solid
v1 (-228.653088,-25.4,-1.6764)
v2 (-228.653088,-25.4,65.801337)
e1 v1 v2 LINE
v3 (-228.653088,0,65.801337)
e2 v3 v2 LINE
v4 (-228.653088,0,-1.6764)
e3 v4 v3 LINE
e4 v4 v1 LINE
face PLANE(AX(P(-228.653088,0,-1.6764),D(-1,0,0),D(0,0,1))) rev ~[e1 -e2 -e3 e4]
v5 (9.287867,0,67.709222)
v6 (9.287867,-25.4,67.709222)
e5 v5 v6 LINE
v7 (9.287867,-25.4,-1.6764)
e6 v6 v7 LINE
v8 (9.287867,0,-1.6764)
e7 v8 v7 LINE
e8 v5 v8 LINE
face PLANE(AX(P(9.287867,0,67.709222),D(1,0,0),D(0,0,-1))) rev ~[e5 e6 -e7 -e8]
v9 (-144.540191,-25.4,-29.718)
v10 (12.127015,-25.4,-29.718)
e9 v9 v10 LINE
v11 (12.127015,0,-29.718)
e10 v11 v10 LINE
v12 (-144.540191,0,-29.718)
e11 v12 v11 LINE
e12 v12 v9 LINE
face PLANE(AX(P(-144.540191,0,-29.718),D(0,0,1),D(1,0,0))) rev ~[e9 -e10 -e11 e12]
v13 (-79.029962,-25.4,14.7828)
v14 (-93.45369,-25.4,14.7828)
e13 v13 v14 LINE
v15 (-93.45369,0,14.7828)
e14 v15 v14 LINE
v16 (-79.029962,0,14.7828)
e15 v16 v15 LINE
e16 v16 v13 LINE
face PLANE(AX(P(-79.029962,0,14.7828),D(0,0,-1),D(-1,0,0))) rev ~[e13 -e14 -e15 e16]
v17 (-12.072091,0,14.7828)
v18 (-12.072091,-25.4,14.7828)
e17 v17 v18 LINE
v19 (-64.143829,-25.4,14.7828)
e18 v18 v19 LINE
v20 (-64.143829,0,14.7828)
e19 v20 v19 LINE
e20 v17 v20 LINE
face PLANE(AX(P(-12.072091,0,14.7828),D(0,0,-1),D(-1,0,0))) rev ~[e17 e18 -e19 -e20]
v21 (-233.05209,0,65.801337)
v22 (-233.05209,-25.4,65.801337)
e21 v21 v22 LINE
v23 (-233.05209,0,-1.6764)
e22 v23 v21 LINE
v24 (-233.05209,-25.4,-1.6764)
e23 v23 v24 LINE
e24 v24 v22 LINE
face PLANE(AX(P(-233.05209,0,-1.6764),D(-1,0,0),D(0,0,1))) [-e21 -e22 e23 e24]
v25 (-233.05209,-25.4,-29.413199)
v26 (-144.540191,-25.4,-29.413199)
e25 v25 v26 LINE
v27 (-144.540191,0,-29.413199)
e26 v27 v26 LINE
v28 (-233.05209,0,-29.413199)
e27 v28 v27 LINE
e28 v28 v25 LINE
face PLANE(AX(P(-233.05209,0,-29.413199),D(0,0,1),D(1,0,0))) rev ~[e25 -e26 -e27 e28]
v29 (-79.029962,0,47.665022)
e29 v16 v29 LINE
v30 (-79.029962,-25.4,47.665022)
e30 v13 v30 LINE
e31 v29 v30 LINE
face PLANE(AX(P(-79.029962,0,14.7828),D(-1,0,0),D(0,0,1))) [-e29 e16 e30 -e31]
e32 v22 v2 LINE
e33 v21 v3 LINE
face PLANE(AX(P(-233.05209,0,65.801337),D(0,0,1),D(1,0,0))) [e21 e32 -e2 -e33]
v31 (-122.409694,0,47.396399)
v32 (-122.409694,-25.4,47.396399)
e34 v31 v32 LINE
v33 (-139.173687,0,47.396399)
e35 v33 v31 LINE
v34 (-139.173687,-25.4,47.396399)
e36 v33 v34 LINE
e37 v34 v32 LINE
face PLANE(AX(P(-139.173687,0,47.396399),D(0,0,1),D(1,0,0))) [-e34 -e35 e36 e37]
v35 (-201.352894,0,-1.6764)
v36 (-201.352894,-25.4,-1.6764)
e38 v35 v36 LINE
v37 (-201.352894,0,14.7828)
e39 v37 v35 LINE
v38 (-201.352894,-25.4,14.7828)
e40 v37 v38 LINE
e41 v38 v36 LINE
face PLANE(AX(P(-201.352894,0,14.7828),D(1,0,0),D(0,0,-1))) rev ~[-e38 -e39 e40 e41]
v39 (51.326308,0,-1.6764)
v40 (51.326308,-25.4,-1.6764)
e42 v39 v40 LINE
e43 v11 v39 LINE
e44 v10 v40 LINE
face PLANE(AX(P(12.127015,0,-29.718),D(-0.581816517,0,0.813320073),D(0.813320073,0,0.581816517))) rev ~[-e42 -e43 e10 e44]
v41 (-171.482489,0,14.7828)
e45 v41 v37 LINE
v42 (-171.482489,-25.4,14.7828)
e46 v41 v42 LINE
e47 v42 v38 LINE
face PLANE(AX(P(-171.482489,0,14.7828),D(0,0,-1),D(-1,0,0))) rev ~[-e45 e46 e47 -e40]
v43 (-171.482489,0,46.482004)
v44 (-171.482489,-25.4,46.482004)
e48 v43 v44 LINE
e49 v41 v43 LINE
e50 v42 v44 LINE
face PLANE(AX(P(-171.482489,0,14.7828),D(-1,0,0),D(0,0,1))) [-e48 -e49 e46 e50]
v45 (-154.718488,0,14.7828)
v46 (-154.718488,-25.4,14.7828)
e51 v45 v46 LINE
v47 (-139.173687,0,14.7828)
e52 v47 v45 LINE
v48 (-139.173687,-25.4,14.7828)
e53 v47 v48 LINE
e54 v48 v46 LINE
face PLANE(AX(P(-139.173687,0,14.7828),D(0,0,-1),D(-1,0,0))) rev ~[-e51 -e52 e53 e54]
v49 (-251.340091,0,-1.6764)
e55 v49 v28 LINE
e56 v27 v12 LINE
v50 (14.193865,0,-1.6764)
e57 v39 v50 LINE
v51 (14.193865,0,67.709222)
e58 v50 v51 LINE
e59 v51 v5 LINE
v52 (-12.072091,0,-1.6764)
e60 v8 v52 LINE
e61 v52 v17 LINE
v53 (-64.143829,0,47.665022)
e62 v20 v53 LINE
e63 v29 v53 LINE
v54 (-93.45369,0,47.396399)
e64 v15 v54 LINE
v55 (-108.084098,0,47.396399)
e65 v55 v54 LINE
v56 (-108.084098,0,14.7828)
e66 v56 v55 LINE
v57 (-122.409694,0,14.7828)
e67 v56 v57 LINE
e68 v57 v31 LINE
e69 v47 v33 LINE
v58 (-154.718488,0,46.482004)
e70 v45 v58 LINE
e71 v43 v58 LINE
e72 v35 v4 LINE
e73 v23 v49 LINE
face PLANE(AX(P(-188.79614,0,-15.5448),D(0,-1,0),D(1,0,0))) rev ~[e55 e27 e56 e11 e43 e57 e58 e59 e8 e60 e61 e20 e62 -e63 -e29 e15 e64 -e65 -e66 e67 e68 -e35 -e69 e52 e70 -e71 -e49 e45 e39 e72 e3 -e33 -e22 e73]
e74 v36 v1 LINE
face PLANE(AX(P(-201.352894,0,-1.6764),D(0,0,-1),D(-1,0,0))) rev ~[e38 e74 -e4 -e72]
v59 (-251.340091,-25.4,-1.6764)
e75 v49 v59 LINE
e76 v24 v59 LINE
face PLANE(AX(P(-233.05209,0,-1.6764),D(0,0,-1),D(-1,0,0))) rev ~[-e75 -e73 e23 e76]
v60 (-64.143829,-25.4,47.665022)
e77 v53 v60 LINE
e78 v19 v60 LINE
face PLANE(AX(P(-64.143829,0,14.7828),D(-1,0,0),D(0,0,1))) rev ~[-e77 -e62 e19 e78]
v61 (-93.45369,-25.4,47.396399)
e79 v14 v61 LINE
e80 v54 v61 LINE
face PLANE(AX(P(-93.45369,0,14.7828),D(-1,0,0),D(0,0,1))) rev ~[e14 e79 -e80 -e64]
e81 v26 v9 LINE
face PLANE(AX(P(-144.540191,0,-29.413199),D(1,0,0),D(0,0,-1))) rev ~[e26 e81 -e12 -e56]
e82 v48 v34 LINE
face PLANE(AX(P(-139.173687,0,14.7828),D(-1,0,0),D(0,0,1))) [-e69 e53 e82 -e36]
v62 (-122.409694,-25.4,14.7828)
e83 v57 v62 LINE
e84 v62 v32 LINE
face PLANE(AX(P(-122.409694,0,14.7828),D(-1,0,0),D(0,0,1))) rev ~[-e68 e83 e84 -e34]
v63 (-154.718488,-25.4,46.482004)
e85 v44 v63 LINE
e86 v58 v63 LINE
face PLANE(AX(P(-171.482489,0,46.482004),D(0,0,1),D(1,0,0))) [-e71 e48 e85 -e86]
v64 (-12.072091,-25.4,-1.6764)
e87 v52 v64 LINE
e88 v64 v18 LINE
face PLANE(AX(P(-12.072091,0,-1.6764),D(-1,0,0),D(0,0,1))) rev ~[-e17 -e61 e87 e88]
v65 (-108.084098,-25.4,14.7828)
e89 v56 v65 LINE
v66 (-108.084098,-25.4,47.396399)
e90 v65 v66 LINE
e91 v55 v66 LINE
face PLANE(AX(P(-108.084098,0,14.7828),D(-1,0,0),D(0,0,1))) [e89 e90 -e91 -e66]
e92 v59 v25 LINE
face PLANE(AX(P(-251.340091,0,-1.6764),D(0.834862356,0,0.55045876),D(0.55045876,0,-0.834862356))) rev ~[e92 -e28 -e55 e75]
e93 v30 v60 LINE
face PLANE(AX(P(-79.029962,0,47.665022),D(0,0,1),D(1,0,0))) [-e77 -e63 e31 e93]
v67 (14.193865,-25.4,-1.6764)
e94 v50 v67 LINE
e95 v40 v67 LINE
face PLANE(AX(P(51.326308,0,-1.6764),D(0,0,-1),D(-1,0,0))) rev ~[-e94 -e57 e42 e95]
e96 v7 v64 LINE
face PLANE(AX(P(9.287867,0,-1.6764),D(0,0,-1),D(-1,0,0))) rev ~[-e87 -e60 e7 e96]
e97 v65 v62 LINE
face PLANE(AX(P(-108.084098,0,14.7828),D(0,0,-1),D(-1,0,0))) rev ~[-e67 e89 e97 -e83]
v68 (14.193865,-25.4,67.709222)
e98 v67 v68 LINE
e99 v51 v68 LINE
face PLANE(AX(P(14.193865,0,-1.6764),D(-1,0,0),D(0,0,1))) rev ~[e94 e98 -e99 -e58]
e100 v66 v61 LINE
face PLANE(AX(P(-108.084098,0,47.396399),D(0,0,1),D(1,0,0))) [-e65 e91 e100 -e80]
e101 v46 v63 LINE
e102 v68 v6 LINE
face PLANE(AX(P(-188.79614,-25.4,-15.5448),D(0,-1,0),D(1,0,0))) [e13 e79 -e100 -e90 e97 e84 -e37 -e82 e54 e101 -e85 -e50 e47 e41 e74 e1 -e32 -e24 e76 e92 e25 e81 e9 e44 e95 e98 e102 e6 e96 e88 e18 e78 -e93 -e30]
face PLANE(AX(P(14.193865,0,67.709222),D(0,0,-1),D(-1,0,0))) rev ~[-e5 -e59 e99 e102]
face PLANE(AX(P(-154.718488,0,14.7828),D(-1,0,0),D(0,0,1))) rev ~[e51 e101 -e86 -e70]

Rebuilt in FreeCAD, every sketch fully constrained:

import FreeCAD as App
import Part
import Sketcher

V = App.Vector
Q = App.Units.Quantity

doc = App.newDocument("Part")
body = doc.addObject("PartDesign::Body", "Body")

# Sketch on XZ plane
sketch1 = body.newObject("Sketcher::SketchObject", "Sketch")
sketch1.AttachmentSupport = (doc.getObject("XZ_Plane"), [""])
sketch1.MapMode = "FlatFace"
sketch1.addGeometry(Part.LineSegment(V(-12.07, -1.68, 0), V(-12.07, 14.78, 0)), False)
sketch1.addGeometry(Part.LineSegment(V(-12.07, 14.78, 0), V(-64.14, 14.78, 0)), False)
sketch1.addGeometry(Part.LineSegment(V(-64.14, 14.78, 0), V(-64.14, 47.67, 0)), False)
sketch1.addGeometry(Part.LineSegment(V(-64.14, 47.67, 0), V(-79.03, 47.67, 0)), False)
sketch1.addGeometry(Part.LineSegment(V(-79.03, 47.67, 0), V(-79.03, 14.78, 0)), False)
sketch1.addGeometry(Part.LineSegment(V(-79.03, 14.78, 0), V(-93.45, 14.78, 0)), False)
sketch1.addGeometry(Part.LineSegment(V(-93.45, 14.78, 0), V(-93.45, 47.4, 0)), False)
sketch1.addGeometry(Part.LineSegment(V(-93.45, 47.4, 0), V(-108.08, 47.4, 0)), False)
sketch1.addGeometry(Part.LineSegment(V(-108.08, 47.4, 0), V(-108.08, 14.78, 0)), False)
sketch1.addGeometry(Part.LineSegment(V(-108.08, 14.78, 0), V(-122.41, 14.78, 0)), False)
sketch1.addGeometry(Part.LineSegment(V(-122.41, 14.78, 0), V(-122.41, 47.4, 0)), False)
sketch1.addGeometry(Part.LineSegment(V(-122.41, 47.4, 0), V(-139.17, 47.4, 0)), False)
sketch1.addGeometry(Part.LineSegment(V(-139.17, 47.4, 0), V(-139.17, 14.78, 0)), False)
sketch1.addGeometry(Part.LineSegment(V(-139.17, 14.78, 0), V(-154.72, 14.78, 0)), False)
sketch1.addGeometry(Part.LineSegment(V(-154.72, 14.78, 0), V(-154.72, 46.48, 0)), False)
sketch1.addGeometry(Part.LineSegment(V(-154.72, 46.48, 0), V(-171.48, 46.48, 0)), False)
sketch1.addGeometry(Part.LineSegment(V(-171.48, 46.48, 0), V(-171.48, 14.78, 0)), False)
sketch1.addGeometry(Part.LineSegment(V(-171.48, 14.78, 0), V(-201.35, 14.78, 0)), False)
sketch1.addGeometry(Part.LineSegment(V(-201.35, 14.78, 0), V(-201.35, -1.68, 0)), False)
sketch1.addGeometry(Part.LineSegment(V(-201.35, -1.68, 0), V(-228.65, -1.68, 0)), False)
sketch1.addGeometry(Part.LineSegment(V(-228.65, -1.68, 0), V(-228.65, 65.8, 0)), False)
sketch1.addGeometry(Part.LineSegment(V(-228.65, 65.8, 0), V(-233.05, 65.8, 0)), False)
sketch1.addGeometry(Part.LineSegment(V(-233.05, 65.8, 0), V(-233.05, -1.68, 0)), False)
sketch1.addGeometry(Part.LineSegment(V(-233.05, -1.68, 0), V(-251.34, -1.68, 0)), False)
sketch1.addGeometry(Part.LineSegment(V(-251.34, -1.68, 0), V(-233.05, -29.41, 0)), False)
sketch1.addGeometry(Part.LineSegment(V(-233.05, -29.41, 0), V(-144.54, -29.41, 0)), False)
sketch1.addGeometry(Part.LineSegment(V(-144.54, -29.41, 0), V(-144.54, -29.72, 0)), False)
sketch1.addGeometry(Part.LineSegment(V(-144.54, -29.72, 0), V(12.13, -29.72, 0)), False)
sketch1.addGeometry(Part.LineSegment(V(12.13, -29.72, 0), V(51.33, -1.68, 0)), False)
sketch1.addGeometry(Part.LineSegment(V(51.33, -1.68, 0), V(14.19, -1.68, 0)), False)
sketch1.addGeometry(Part.LineSegment(V(14.19, -1.68, 0), V(14.19, 67.71, 0)), False)
sketch1.addGeometry(Part.LineSegment(V(14.19, 67.71, 0), V(9.29, 67.71, 0)), False)
sketch1.addGeometry(Part.LineSegment(V(9.29, 67.71, 0), V(9.29, -1.68, 0)), False)
sketch1.addGeometry(Part.LineSegment(V(9.29, -1.68, 0), V(-12.07, -1.68, 0)), False)
sketch1.addConstraint(Sketcher.Constraint("Coincident", 0, 2, 1, 1))
sketch1.addConstraint(Sketcher.Constraint("Coincident", 1, 2, 2, 1))
sketch1.addConstraint(Sketcher.Constraint("Coincident", 2, 2, 3, 1))
sketch1.addConstraint(Sketcher.Constraint("Coincident", 3, 2, 4, 1))
sketch1.addConstraint(Sketcher.Constraint("Coincident", 4, 2, 5, 1))
sketch1.addConstraint(Sketcher.Constraint("Coincident", 5, 2, 6, 1))
sketch1.addConstraint(Sketcher.Constraint("Coincident", 6, 2, 7, 1))
sketch1.addConstraint(Sketcher.Constraint("Coincident", 7, 2, 8, 1))
sketch1.addConstraint(Sketcher.Constraint("Coincident", 8, 2, 9, 1))
sketch1.addConstraint(Sketcher.Constraint("Coincident", 9, 2, 10, 1))
sketch1.addConstraint(Sketcher.Constraint("Coincident", 10, 2, 11, 1))
sketch1.addConstraint(Sketcher.Constraint("Coincident", 11, 2, 12, 1))
sketch1.addConstraint(Sketcher.Constraint("Coincident", 12, 2, 13, 1))
sketch1.addConstraint(Sketcher.Constraint("Coincident", 13, 2, 14, 1))
sketch1.addConstraint(Sketcher.Constraint("Coincident", 14, 2, 15, 1))
sketch1.addConstraint(Sketcher.Constraint("Coincident", 15, 2, 16, 1))
sketch1.addConstraint(Sketcher.Constraint("Coincident", 16, 2, 17, 1))
sketch1.addConstraint(Sketcher.Constraint("Coincident", 17, 2, 18, 1))
sketch1.addConstraint(Sketcher.Constraint("Coincident", 18, 2, 19, 1))
sketch1.addConstraint(Sketcher.Constraint("Coincident", 19, 2, 20, 1))
sketch1.addConstraint(Sketcher.Constraint("Coincident", 20, 2, 21, 1))
sketch1.addConstraint(Sketcher.Constraint("Coincident", 21, 2, 22, 1))
sketch1.addConstraint(Sketcher.Constraint("Coincident", 22, 2, 23, 1))
sketch1.addConstraint(Sketcher.Constraint("Coincident", 23, 2, 24, 1))
sketch1.addConstraint(Sketcher.Constraint("Coincident", 24, 2, 25, 1))
sketch1.addConstraint(Sketcher.Constraint("Coincident", 25, 2, 26, 1))
sketch1.addConstraint(Sketcher.Constraint("Coincident", 26, 2, 27, 1))
sketch1.addConstraint(Sketcher.Constraint("Coincident", 27, 2, 28, 1))
sketch1.addConstraint(Sketcher.Constraint("Coincident", 28, 2, 29, 1))
sketch1.addConstraint(Sketcher.Constraint("Coincident", 29, 2, 30, 1))
sketch1.addConstraint(Sketcher.Constraint("Coincident", 30, 2, 31, 1))
sketch1.addConstraint(Sketcher.Constraint("Coincident", 31, 2, 32, 1))
sketch1.addConstraint(Sketcher.Constraint("Coincident", 32, 2, 33, 1))
sketch1.addConstraint(Sketcher.Constraint("Coincident", 33, 2, 0, 1))
sketch1.addConstraint(Sketcher.Constraint("Vertical", 0))
sketch1.addConstraint(Sketcher.Constraint("Horizontal", 1))
sketch1.addConstraint(Sketcher.Constraint("Vertical", 2))
sketch1.addConstraint(Sketcher.Constraint("Horizontal", 3))
sketch1.addConstraint(Sketcher.Constraint("Vertical", 4))
sketch1.addConstraint(Sketcher.Constraint("Horizontal", 5))
sketch1.addConstraint(Sketcher.Constraint("Vertical", 6))
sketch1.addConstraint(Sketcher.Constraint("Horizontal", 7))
sketch1.addConstraint(Sketcher.Constraint("Vertical", 8))
sketch1.addConstraint(Sketcher.Constraint("Horizontal", 9))
sketch1.addConstraint(Sketcher.Constraint("Vertical", 10))
sketch1.addConstraint(Sketcher.Constraint("Horizontal", 11))
sketch1.addConstraint(Sketcher.Constraint("Vertical", 12))
sketch1.addConstraint(Sketcher.Constraint("Horizontal", 13))
sketch1.addConstraint(Sketcher.Constraint("Vertical", 14))
sketch1.addConstraint(Sketcher.Constraint("Horizontal", 15))
sketch1.addConstraint(Sketcher.Constraint("Vertical", 16))
sketch1.addConstraint(Sketcher.Constraint("Horizontal", 17))
sketch1.addConstraint(Sketcher.Constraint("Vertical", 18))
sketch1.addConstraint(Sketcher.Constraint("Horizontal", 19))
sketch1.addConstraint(Sketcher.Constraint("Vertical", 20))
sketch1.addConstraint(Sketcher.Constraint("Horizontal", 21))
sketch1.addConstraint(Sketcher.Constraint("Vertical", 22))
sketch1.addConstraint(Sketcher.Constraint("Horizontal", 23))
sketch1.addConstraint(Sketcher.Constraint("Horizontal", 25))
sketch1.addConstraint(Sketcher.Constraint("Vertical", 26))
sketch1.addConstraint(Sketcher.Constraint("Horizontal", 27))
sketch1.addConstraint(Sketcher.Constraint("Horizontal", 29))
sketch1.addConstraint(Sketcher.Constraint("Vertical", 30))
sketch1.addConstraint(Sketcher.Constraint("Horizontal", 31))
sketch1.addConstraint(Sketcher.Constraint("Vertical", 32))
sketch1.addConstraint(Sketcher.Constraint("Horizontal", 33))
sketch1.addConstraint(Sketcher.Constraint("Horizontal", 1, 2, 4, 2))
sketch1.addConstraint(Sketcher.Constraint("Horizontal", 5, 2, 8, 2))
sketch1.addConstraint(Sketcher.Constraint("Horizontal", 7, 2, 10, 2))
sketch1.addConstraint(Sketcher.Constraint("Horizontal", 9, 2, 12, 2))
sketch1.addConstraint(Sketcher.Constraint("Horizontal", 13, 2, 16, 2))
sketch1.addConstraint(Sketcher.Constraint("Horizontal", 19, 2, 22, 2))
sketch1.addConstraint(Sketcher.Constraint("Horizontal", 23, 2, 28, 2))
sketch1.addConstraint(Sketcher.Constraint("Horizontal", 29, 2, 32, 2))
sketch1.addConstraint(Sketcher.Constraint("Vertical", 22, 2, 24, 2))
sketch1.addConstraint(Sketcher.Constraint("DistanceX", 15, 2, 15, 1, Q("0.66 in")))
sketch1.addConstraint(Sketcher.Constraint("DistanceX", 23, 2, 23, 1, Q("0.7200001 in")))
sketch1.addConstraint(Sketcher.Constraint("DistanceX", 11, 2, 6, 2, Q("1.7999998 in")))
sketch1.addConstraint(Sketcher.Constraint("DistanceX", 9, 2, 9, 1, Q("0.5639999 in")))
sketch1.addConstraint(Sketcher.Constraint("DistanceX", 13, 2, 13, 1, Q("0.6120001 in")))
sketch1.addConstraint(Sketcher.Constraint("DistanceY", 0, 1, 0, 2, Q("0.648 in")))
sketch1.addConstraint(Sketcher.Constraint("DistanceY", 6, 1, 6, 2, Q("1.284 in")))
sketch1.addConstraint(Sketcher.Constraint("DistanceY", 14, 1, 14, 2, Q("1.2480002 in")))
sketch1.addConstraint(Sketcher.Constraint("DistanceY", 26, 2, 26, 1, Q("0.0120001 in")))
sketch1.addConstraint(Sketcher.Constraint("DistanceY", -1, 1, 14, 2, Q("1.8300002 in")))
sketch1.addConstraint(Sketcher.Constraint("DistanceY", 26, 2, -1, 1, Q("1.17 in")))
sketch1.addConstraint(Sketcher.Constraint("DistanceX", 9, 2, 5, 2, Q("1.1400001 in")))
sketch1.addConstraint(Sketcher.Constraint("DistanceX", 5, 2, 0, 2, Q("3.204 in")))
sketch1.addConstraint(Sketcher.Constraint("DistanceX", 21, 2, 17, 2, Q("1.2479998 in")))
sketch1.addConstraint(Sketcher.Constraint("DistanceX", 21, 2, 15, 2, Q("2.4240001 in")))
sketch1.addConstraint(Sketcher.Constraint("DistanceX", 0, 2, 28, 2, Q("2.496 in")))
sketch1.addConstraint(Sketcher.Constraint("DistanceX", 21, 2, 21, 1, Q("4.399002 mm")))
sketch1.addConstraint(Sketcher.Constraint("DistanceX", 25, 1, 25, 2, Q("88.511899 mm")))
sketch1.addConstraint(Sketcher.Constraint("DistanceX", 31, 2, 31, 1, Q("4.905999 mm")))
sketch1.addConstraint(Sketcher.Constraint("DistanceX", 1, 2, 1, 1, Q("52.071738 mm")))
sketch1.addConstraint(Sketcher.Constraint("DistanceY", 2, 1, 2, 2, Q("32.882222 mm")))
sketch1.addConstraint(Sketcher.Constraint("DistanceY", 2, 2, 30, 2, Q("20.0442 mm")))
sketch1.addConstraint(Sketcher.Constraint("Distance", 28, Q("48.196639 mm")))
sketch1.addConstraint(Sketcher.Constraint("DistanceX", 3, 2, 3, 1, Q("14.886133 mm")))
sketch1.addConstraint(Sketcher.Constraint("DistanceX", 29, 2, 29, 1, Q("37.132443 mm")))
sketch1.addConstraint(Sketcher.Constraint("DistanceY", 20, 1, 20, 2, Q("67.477737 mm")))
sketch1.addConstraint(Sketcher.Constraint("DistanceX", 0, 2, -1, 1, Q("12.072091 mm")))
pad1 = body.newObject("PartDesign::Pad", "Pad")
pad1.Profile = sketch1
pad1.Length = Q("1 in")

doc.recompute()
